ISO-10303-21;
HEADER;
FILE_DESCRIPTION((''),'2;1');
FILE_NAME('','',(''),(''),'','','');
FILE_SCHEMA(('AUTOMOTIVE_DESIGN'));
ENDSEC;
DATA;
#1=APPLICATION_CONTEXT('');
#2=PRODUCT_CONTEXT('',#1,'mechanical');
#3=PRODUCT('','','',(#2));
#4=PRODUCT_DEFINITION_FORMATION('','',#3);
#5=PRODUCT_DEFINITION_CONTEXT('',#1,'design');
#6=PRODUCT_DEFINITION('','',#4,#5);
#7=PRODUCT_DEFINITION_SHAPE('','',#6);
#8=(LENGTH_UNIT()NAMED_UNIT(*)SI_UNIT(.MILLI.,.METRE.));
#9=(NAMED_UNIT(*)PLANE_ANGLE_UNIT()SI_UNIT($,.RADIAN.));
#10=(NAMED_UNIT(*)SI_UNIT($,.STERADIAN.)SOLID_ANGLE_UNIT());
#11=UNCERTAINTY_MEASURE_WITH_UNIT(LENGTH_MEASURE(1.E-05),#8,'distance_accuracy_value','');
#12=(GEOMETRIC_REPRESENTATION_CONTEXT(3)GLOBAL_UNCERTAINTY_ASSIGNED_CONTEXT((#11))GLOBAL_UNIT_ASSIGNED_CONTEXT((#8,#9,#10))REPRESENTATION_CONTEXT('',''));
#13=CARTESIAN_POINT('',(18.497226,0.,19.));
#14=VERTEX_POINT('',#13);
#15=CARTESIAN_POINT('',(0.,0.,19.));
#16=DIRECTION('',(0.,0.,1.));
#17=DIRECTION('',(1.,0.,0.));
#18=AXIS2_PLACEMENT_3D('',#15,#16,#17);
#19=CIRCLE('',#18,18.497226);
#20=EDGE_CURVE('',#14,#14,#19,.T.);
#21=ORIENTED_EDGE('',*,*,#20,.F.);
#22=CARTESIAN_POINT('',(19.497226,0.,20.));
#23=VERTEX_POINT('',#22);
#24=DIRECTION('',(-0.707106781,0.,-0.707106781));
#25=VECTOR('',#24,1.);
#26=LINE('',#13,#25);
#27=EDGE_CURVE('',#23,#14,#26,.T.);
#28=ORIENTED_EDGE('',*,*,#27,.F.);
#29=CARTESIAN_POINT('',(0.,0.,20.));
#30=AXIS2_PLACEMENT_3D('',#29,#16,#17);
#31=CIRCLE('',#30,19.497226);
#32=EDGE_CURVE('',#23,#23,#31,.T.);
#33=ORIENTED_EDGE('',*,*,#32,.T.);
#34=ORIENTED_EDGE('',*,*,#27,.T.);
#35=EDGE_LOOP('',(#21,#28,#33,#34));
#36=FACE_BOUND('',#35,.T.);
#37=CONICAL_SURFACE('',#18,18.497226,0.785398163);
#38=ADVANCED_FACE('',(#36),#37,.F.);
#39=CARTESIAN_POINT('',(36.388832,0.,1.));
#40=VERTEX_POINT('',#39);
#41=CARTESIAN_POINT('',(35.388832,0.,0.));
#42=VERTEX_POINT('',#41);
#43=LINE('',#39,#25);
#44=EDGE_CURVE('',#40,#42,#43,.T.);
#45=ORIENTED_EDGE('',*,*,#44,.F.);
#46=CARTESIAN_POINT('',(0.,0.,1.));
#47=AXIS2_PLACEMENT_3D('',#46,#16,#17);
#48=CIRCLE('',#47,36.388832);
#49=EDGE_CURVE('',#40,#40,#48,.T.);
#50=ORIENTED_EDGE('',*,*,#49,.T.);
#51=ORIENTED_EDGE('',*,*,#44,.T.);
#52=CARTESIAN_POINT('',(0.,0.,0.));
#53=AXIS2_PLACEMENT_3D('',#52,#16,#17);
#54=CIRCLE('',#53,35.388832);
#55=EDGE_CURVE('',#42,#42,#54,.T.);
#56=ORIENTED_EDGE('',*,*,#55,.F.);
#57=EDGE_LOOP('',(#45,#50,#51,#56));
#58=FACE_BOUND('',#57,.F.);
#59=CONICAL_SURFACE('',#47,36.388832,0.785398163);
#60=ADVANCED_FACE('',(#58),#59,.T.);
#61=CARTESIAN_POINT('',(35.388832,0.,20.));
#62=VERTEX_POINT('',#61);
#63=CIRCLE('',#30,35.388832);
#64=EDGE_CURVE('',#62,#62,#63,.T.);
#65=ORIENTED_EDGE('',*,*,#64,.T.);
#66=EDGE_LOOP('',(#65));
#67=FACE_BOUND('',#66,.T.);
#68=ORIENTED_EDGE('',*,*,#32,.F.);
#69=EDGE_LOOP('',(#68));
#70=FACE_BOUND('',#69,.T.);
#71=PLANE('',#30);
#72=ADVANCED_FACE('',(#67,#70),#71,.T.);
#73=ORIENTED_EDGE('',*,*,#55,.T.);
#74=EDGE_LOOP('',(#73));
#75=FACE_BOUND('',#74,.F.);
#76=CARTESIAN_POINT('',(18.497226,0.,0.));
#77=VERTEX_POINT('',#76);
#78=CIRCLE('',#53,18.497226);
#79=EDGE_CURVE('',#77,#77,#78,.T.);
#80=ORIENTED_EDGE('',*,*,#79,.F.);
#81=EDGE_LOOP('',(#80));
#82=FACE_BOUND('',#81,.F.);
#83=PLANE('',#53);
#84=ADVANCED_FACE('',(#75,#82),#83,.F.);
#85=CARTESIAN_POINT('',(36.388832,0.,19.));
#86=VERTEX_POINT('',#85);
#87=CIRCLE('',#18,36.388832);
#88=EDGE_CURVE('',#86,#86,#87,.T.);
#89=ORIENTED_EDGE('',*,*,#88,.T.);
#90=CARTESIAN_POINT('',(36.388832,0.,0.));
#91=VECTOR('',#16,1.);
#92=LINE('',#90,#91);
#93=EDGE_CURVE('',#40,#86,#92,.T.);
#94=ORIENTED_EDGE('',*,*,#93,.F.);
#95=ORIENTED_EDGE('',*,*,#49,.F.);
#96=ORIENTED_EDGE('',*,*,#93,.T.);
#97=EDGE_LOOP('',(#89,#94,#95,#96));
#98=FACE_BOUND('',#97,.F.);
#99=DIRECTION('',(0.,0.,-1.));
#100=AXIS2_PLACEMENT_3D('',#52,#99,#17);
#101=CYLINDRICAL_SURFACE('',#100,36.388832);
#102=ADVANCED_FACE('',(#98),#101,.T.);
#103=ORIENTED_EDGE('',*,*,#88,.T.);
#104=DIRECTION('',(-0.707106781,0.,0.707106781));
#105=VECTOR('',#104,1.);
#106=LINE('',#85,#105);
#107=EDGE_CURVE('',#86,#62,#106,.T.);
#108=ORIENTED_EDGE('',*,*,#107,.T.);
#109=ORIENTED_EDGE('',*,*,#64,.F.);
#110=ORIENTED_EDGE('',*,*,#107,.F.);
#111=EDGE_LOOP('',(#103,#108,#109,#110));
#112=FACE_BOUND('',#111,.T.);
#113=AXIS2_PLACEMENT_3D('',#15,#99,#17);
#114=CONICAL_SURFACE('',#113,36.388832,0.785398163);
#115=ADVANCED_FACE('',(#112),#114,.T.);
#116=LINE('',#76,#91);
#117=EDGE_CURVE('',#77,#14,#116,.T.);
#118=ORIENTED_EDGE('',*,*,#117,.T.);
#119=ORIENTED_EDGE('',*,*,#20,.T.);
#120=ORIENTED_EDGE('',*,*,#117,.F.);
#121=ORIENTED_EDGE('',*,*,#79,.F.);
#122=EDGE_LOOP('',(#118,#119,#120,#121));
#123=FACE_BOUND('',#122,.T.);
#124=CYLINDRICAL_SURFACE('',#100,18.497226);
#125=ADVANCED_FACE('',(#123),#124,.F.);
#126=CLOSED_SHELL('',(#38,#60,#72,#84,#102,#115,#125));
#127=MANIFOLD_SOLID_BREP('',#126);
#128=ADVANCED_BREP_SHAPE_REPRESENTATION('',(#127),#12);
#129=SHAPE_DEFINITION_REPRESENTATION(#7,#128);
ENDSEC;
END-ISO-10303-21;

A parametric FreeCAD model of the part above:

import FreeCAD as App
import Part
import Sketcher
Q = App.Units.Quantity


def edges_at(feature, points):
    """Names of the edges that pass closest to the given points."""
    edges = feature.Shape.Edges
    near = lambda p: min(range(len(edges)), key=lambda i: edges[i].distToShape(Part.Vertex(*p))[0])
    return sorted({f"Edge{near(p) + 1}" for p in points})

doc = App.newDocument("Part")
body = doc.addObject("PartDesign::Body", "Body")

# Sketch on XY plane
sketch1 = body.newObject("Sketcher::SketchObject", "Sketch")
sketch1.AttachmentSupport = (doc.getObject("XY_Plane"), [""])
sketch1.MapMode = "FlatFace"
sketch1.addGeometry(Part.Circle(App.Vector(0, 0, 0), App.Vector(0, 0, 1), 36), False)
sketch1.addGeometry(Part.Circle(App.Vector(0, 0, 0), App.Vector(0, 0, 1), 18), False)
sketch1.addConstraint(Sketcher.Constraint("Coincident", 0, 3, -1, 1))
sketch1.addConstraint(Sketcher.Constraint("Coincident", 1, 3, -1, 1))
sketch1.addConstraint(Sketcher.Constraint("Diameter", 0, Q("72.777664 mm")))
sketch1.addConstraint(Sketcher.Constraint("Diameter", 1, Q("36.994452 mm")))
pad1 = body.newObject("PartDesign::Pad", "Pad")
pad1.Profile = sketch1
pad1.Length = 20
doc.recompute()

chamfer = body.newObject("PartDesign::Chamfer", "Chamfer")
chamfer.Base = (pad1, edges_at(pad1, [(-36.389, 0, 20), (-36.389, 0, 0)]))
chamfer.Size = 1
doc.recompute()

chamfer2 = body.newObject("PartDesign::Chamfer", "Chamfer001")
chamfer2.Base = (chamfer, edges_at(chamfer, [(-18.497, 0, 20)]))
chamfer2.Size = 1

doc.recompute()
